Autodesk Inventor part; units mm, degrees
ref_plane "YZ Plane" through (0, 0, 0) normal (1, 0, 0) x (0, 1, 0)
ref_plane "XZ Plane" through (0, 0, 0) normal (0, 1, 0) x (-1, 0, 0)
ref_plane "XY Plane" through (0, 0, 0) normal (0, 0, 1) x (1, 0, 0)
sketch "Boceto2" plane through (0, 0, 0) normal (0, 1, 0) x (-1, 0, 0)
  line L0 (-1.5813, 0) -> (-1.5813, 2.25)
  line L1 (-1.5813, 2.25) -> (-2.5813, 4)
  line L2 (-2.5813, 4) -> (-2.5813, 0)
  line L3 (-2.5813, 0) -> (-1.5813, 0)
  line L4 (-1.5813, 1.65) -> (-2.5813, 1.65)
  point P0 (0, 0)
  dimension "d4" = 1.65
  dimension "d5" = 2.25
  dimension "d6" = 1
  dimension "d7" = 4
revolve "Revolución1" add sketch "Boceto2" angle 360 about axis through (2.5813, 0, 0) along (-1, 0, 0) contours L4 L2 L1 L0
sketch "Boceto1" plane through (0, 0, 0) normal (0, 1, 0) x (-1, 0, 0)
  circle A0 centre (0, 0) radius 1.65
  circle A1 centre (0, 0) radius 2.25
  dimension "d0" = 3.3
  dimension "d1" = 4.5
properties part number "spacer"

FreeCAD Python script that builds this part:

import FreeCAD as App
import Part
import Sketcher

V = App.Vector


def add_polygon(sketch, points):
    """Adds a closed chain of lines whose ends are joined by coincident constraints."""
    first, n = sketch.GeometryCount, len(points)
    for a, b in zip(points, points[1:] + points[:1]):
        sketch.addGeometry(Part.LineSegment(App.Vector(*a, 0), App.Vector(*b, 0)), False)
    for i in range(n):
        sketch.addConstraint(Sketcher.Constraint("Coincident", first + i, 2, first + (i + 1) % n, 1))

doc = App.newDocument("Part")
body = doc.addObject("PartDesign::Body", "Body")

# Sketch on XZ plane
sketch1 = body.newObject("Sketcher::SketchObject", "Sketch")
sketch1.AttachmentSupport = (doc.getObject("XZ_Plane"), [""])
sketch1.MapMode = "FlatFace"
add_polygon(sketch1, [(2.5813, 1.65), (1.5813, 1.65), (1.5813, 2.25), (2.5813, 4)])  # lines 0-3
sketch1.addConstraint([
    Sketcher.Constraint("Horizontal", 0),
    Sketcher.Constraint("Vertical", 1),
    Sketcher.Constraint("Vertical", 3),
    Sketcher.Constraint("DistanceX", 0, 2, 0, 1, 1.0),
    Sketcher.Constraint("DistanceY", -1, 1, 2, 2, 4.0),
    Sketcher.Constraint("DistanceY", -1, 1, 0, 2, 1.65),
    Sketcher.Constraint("DistanceY", -1, 1, 1, 2, 2.25),
    Sketcher.Constraint("DistanceX", -1, 1, 0, 2, 1.5813),
])
revolution = body.newObject("PartDesign::Revolution", "Revolution")
revolution.Profile = sketch1
revolution.ReferenceAxis = (sketch1, ["H_Axis"])
revolution.Angle = 360

doc.recompute()
